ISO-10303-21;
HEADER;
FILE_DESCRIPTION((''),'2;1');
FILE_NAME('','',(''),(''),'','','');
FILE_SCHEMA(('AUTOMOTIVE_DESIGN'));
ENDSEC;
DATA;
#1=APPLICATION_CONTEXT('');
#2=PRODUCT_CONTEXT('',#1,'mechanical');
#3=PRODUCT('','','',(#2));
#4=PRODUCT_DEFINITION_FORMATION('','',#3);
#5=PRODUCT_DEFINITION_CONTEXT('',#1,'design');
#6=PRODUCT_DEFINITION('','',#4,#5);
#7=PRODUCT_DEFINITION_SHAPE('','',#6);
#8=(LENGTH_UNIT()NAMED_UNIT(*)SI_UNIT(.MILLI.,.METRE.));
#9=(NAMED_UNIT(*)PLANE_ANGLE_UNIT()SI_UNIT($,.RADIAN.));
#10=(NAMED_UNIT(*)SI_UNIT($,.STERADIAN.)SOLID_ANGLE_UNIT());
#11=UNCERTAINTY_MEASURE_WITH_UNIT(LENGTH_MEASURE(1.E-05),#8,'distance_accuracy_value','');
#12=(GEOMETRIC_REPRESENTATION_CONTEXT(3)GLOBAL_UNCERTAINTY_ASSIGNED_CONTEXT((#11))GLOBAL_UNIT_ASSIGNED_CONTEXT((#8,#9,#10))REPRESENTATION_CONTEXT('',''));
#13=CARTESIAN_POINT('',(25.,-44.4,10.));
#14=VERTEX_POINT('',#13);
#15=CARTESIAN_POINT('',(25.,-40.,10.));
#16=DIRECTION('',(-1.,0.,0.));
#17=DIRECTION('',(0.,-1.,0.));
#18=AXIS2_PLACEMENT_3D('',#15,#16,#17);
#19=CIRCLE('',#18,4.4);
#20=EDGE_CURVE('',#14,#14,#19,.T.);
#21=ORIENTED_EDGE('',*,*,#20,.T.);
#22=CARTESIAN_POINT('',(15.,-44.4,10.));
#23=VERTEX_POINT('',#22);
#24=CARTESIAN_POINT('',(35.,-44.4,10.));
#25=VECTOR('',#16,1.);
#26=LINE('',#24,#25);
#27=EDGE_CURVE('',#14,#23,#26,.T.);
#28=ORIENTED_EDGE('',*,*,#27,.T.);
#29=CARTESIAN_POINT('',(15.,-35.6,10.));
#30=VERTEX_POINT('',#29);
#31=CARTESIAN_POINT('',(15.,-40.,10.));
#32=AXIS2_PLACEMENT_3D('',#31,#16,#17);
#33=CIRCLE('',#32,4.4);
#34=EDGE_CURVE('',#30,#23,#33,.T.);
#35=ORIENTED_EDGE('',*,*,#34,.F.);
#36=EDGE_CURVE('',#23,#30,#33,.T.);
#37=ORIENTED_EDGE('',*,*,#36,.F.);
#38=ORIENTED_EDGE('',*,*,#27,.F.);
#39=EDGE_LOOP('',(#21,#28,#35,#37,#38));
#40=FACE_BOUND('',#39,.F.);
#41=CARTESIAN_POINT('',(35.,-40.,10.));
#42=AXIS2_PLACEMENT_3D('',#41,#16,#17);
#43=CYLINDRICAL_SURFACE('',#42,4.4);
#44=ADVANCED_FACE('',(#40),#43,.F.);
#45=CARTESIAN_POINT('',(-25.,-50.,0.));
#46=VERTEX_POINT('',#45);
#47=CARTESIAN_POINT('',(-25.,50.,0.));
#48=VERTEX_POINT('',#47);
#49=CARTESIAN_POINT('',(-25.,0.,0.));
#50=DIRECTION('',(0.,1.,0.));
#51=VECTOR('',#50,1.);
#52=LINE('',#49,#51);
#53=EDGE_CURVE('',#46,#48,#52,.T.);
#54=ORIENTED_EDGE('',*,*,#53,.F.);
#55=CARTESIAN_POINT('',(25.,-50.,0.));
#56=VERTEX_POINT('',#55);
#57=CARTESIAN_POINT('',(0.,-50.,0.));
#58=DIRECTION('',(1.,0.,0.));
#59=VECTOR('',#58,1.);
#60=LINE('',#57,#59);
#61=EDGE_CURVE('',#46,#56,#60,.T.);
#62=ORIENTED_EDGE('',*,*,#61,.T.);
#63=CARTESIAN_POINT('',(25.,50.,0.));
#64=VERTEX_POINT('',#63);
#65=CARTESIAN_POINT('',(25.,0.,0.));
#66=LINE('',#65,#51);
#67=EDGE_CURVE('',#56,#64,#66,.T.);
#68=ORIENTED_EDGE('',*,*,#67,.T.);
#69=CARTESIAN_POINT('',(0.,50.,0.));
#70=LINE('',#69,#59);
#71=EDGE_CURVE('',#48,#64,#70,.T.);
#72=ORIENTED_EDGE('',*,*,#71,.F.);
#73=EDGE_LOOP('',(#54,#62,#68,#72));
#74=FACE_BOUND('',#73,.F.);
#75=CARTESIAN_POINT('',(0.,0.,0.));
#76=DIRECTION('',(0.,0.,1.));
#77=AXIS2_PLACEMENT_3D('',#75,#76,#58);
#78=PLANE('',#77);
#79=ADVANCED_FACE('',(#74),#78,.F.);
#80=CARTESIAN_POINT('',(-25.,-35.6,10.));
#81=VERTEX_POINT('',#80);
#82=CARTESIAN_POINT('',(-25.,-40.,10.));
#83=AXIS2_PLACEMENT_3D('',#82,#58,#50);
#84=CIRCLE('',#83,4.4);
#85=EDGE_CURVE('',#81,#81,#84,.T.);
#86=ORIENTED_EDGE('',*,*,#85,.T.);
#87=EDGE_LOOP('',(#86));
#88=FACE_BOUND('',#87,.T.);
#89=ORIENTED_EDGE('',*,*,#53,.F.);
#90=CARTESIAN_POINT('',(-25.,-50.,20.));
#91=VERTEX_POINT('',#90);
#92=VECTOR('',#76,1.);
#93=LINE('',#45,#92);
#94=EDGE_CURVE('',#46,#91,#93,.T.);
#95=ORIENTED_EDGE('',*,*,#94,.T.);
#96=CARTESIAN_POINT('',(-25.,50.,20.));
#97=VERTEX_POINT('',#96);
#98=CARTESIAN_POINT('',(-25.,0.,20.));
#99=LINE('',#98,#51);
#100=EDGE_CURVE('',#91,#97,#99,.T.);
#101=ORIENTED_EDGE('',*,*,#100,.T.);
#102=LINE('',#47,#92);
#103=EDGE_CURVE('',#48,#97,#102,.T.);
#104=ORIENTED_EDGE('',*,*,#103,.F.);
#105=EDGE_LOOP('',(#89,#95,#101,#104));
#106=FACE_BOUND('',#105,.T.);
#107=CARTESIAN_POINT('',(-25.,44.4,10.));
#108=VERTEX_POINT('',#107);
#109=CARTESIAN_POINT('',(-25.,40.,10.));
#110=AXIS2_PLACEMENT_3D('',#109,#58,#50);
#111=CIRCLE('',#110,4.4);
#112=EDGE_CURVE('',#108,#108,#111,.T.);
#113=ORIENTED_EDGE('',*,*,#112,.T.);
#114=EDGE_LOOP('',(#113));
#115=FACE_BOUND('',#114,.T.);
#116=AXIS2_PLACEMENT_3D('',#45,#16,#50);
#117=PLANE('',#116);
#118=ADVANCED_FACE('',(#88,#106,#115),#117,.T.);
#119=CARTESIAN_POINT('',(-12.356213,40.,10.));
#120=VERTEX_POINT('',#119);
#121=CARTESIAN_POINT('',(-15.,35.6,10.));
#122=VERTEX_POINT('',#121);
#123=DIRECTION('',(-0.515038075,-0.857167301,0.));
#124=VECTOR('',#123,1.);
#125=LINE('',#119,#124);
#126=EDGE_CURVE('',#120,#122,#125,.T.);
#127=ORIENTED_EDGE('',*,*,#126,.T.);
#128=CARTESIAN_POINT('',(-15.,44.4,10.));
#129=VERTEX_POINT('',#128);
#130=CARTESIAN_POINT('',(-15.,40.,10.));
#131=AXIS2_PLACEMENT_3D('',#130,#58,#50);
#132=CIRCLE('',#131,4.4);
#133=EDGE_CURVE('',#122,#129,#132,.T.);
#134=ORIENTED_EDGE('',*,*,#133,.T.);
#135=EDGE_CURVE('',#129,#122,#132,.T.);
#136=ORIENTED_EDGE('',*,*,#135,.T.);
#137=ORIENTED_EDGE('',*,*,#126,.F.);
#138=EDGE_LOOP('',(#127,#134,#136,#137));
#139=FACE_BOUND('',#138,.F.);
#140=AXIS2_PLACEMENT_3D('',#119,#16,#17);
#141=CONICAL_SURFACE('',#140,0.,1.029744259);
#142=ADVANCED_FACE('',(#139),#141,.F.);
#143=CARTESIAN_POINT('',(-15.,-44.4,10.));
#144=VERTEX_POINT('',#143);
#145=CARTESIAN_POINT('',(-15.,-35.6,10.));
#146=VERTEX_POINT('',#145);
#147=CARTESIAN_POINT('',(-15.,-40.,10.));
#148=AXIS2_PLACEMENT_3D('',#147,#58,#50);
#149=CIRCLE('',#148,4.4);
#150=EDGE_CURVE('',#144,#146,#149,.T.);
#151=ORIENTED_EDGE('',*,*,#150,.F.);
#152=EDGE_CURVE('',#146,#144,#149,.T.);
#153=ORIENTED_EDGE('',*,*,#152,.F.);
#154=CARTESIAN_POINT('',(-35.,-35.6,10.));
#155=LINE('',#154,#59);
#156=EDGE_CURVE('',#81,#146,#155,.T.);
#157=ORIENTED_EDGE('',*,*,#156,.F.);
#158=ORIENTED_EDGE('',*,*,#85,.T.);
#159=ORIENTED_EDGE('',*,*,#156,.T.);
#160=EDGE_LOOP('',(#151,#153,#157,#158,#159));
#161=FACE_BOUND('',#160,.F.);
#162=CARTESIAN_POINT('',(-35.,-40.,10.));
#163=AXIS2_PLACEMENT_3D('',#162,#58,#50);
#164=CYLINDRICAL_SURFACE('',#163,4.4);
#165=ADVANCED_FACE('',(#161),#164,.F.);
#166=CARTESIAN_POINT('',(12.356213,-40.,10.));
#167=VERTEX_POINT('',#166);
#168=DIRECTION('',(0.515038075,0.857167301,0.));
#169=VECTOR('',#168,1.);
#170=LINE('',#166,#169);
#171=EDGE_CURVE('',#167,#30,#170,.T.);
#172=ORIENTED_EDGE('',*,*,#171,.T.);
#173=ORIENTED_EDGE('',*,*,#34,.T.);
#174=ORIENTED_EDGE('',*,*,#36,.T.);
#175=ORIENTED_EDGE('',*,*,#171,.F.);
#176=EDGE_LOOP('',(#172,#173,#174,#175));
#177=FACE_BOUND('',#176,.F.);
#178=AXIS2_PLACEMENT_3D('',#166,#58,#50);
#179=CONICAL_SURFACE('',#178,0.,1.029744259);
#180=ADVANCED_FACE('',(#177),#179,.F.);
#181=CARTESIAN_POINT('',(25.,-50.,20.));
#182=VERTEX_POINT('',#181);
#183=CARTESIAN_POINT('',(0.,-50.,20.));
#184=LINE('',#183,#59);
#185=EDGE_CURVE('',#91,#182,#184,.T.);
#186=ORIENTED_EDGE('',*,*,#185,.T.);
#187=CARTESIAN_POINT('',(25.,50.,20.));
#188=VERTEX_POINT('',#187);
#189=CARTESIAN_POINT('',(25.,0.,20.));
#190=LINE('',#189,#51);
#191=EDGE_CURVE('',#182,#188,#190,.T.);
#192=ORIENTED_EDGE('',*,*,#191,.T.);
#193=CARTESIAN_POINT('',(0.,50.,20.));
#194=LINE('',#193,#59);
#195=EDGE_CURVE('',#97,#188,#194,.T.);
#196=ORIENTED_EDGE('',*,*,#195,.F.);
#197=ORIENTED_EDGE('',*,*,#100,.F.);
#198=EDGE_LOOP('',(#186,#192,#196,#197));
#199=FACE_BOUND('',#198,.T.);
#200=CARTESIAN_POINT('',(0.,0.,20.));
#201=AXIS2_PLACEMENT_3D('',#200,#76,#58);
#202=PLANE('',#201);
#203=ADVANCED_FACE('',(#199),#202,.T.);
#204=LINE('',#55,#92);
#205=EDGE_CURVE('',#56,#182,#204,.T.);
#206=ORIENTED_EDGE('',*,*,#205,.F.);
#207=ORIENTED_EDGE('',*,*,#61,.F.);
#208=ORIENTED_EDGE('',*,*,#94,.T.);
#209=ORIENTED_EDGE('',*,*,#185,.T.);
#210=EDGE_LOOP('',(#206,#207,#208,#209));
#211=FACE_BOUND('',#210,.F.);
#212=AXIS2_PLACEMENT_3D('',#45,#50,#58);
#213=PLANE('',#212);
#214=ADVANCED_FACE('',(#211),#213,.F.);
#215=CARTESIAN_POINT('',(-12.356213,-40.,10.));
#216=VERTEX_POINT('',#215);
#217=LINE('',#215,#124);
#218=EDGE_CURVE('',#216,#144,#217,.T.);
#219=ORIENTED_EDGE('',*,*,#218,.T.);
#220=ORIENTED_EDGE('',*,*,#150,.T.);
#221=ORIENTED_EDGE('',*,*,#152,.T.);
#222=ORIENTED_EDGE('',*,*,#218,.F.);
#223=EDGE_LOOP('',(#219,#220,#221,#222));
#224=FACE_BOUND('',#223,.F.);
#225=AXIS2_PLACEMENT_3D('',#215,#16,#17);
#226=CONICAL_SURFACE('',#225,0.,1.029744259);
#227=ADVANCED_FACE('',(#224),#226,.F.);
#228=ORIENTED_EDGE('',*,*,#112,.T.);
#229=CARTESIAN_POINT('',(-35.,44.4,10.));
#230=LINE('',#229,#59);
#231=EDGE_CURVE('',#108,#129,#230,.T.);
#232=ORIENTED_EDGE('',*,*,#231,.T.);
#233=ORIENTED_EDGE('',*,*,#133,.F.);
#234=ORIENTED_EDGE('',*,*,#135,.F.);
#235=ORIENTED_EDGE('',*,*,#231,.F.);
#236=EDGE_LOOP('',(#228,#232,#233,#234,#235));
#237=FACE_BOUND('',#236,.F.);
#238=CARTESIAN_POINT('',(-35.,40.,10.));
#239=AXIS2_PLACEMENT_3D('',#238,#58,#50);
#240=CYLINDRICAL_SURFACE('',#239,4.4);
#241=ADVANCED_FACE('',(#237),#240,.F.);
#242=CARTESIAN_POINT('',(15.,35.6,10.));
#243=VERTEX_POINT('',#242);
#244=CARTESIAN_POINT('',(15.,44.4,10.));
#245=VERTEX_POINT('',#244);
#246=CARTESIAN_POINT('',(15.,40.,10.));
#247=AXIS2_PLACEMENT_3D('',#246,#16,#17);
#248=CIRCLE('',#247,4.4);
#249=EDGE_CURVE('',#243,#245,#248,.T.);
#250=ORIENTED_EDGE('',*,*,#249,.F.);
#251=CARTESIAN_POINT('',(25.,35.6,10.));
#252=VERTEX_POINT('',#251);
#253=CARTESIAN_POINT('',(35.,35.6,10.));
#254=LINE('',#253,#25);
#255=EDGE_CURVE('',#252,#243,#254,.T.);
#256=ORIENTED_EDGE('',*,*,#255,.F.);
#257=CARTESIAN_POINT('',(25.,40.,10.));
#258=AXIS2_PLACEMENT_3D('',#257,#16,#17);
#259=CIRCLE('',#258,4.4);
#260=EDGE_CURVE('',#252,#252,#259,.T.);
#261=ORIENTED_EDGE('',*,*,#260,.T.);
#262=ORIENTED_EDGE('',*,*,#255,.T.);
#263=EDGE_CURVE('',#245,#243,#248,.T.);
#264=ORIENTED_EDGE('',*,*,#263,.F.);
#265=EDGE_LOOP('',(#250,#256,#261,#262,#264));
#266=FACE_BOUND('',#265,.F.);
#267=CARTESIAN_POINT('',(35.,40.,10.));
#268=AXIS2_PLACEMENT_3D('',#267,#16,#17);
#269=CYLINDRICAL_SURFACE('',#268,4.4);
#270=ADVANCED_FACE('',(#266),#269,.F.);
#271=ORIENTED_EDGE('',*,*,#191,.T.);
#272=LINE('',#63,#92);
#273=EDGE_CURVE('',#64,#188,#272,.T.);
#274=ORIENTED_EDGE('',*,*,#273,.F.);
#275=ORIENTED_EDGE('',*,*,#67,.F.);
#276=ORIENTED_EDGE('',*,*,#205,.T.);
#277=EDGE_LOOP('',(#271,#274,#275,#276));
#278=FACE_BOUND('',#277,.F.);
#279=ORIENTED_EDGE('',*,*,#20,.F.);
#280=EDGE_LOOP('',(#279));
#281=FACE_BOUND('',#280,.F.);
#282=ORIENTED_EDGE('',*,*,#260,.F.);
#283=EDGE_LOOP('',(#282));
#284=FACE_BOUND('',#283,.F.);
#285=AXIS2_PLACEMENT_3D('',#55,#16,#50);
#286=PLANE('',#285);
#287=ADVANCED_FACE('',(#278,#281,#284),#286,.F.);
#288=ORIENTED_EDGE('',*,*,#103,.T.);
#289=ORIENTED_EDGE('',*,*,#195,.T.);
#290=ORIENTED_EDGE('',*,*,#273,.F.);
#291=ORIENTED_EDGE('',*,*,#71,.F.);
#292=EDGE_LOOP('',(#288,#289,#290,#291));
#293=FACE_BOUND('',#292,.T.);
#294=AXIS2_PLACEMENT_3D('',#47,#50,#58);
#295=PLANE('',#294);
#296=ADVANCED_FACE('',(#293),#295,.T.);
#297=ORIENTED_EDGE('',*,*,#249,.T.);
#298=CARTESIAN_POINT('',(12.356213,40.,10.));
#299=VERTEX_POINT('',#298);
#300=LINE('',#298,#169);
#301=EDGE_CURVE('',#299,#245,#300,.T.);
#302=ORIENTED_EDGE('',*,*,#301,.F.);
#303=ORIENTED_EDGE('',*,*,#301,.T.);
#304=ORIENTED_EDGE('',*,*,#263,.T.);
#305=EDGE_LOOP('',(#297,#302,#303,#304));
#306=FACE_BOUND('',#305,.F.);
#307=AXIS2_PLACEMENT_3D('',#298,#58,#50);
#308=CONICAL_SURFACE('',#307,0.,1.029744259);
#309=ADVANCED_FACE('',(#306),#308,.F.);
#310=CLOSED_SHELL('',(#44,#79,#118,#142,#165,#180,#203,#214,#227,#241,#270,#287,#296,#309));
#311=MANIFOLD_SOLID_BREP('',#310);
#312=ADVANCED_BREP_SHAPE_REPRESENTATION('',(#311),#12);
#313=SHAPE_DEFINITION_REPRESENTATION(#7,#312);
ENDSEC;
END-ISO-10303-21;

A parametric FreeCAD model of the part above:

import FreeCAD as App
import Part
import Sketcher
Q = App.Units.Quantity

doc = App.newDocument("Part")
body = doc.addObject("PartDesign::Body", "Body")

sketch1 = body.newObject("Sketcher::SketchObject", "Sketch")
sketch1.AttachmentSupport = (doc.getObject("XY_Plane"), [""])
sketch1.MapMode = "FlatFace"
sketch1.addGeometry(Part.LineSegment(App.Vector(-25, 50, 0), App.Vector(-25, -50, 0)), False)
sketch1.addGeometry(Part.LineSegment(App.Vector(-25, -50, 0), App.Vector(25, -50, 0)), False)
sketch1.addGeometry(Part.LineSegment(App.Vector(25, -50, 0), App.Vector(25, 50, 0)), False)
sketch1.addGeometry(Part.LineSegment(App.Vector(25, 50, 0), App.Vector(-25, 50, 0)), False)
sketch1.addConstraint(Sketcher.Constraint("Coincident", 0, 2, 1, 1))
sketch1.addConstraint(Sketcher.Constraint("Coincident", 1, 2, 2, 1))
sketch1.addConstraint(Sketcher.Constraint("Coincident", 2, 2, 3, 1))
sketch1.addConstraint(Sketcher.Constraint("Coincident", 3, 2, 0, 1))
sketch1.addConstraint(Sketcher.Constraint("Vertical", 0))
sketch1.addConstraint(Sketcher.Constraint("Horizontal", 1))
sketch1.addConstraint(Sketcher.Constraint("Vertical", 2))
sketch1.addConstraint(Sketcher.Constraint("Horizontal", 3))
sketch1.addConstraint(Sketcher.Constraint("Symmetric", 0, 2, 2, 2, -1, 1))
sketch1.addConstraint(Sketcher.Constraint("DistanceX", 1, 1, 1, 2, Q("50 mm")))
sketch1.addConstraint(Sketcher.Constraint("DistanceY", 0, 2, 0, 1, Q("100 mm")))
pad1 = body.newObject("PartDesign::Pad", "Pad")
pad1.Profile = sketch1
pad1.Length = 20

sketch2 = body.newObject("Sketcher::SketchObject", "Sketch001")
sketch2.AttachmentSupport = (doc.getObject("YZ_Plane"), [""])
sketch2.MapMode = "FlatFace"
sketch2.AttachmentOffset = App.Placement(App.Vector(0, 0, 25), App.Rotation())
sketch2.addGeometry(Part.Circle(App.Vector(-40, 10, 0), App.Vector(0, 0, 1), 4.4), False)
sketch2.addGeometry(Part.Circle(App.Vector(40, 10, 0), App.Vector(0, 0, 1), 4.4), False)
sketch2.addConstraint(Sketcher.Constraint("Equal", 0, 1))
sketch2.addConstraint(Sketcher.Constraint("Symmetric", 0, 3, 1, 3, -2))
sketch2.addConstraint(Sketcher.Constraint("Diameter", 0, Q("8.8 mm")))
sketch2.addConstraint(Sketcher.Constraint("DistanceX", 0, 3, -1, 1, Q("40 mm")))
sketch2.addConstraint(Sketcher.Constraint("DistanceY", -1, 1, 0, 3, Q("10 mm")))
doc.recompute()
hole = body.newObject("PartDesign::Hole", "Hole")
hole.Profile = sketch2
hole.ThreadType = "None"
hole.Diameter = 8.8
hole.DepthType = "Dimension"
hole.Depth = 10
hole.DrillPoint = "Angled"
hole.DrillPointAngle = 118

sketch3 = body.newObject("Sketcher::SketchObject", "Sketch002")
sketch3.AttachmentSupport = (doc.getObject("YZ_Plane"), [""])
sketch3.MapMode = "FlatFace"
sketch3.AttachmentOffset = App.Placement(App.Vector(0, 0, -25), App.Rotation())
sketch3.addGeometry(Part.Circle(App.Vector(40, 10, 0), App.Vector(0, 0, 1), 4.4), False)
sketch3.addGeometry(Part.Circle(App.Vector(-40, 10, 0), App.Vector(0, 0, 1), 4.4), False)
sketch3.addConstraint(Sketcher.Constraint("Equal", 0, 1))
sketch3.addConstraint(Sketcher.Constraint("Symmetric", 0, 3, 1, 3, -2))
sketch3.addConstraint(Sketcher.Constraint("Diameter", 0, Q("8.8 mm")))
sketch3.addConstraint(Sketcher.Constraint("DistanceX", -1, 1, 0, 3, Q("40 mm")))
sketch3.addConstraint(Sketcher.Constraint("DistanceY", -1, 1, 0, 3, Q("10 mm")))
doc.recompute()
hole2 = body.newObject("PartDesign::Hole", "Hole001")
hole2.Profile = sketch3
hole2.ThreadType = "None"
hole2.Diameter = 8.8
hole2.DepthType = "Dimension"
hole2.Depth = 10
hole2.DrillPoint = "Angled"
hole2.DrillPointAngle = 118
hole2.Reversed = True

doc.recompute()
